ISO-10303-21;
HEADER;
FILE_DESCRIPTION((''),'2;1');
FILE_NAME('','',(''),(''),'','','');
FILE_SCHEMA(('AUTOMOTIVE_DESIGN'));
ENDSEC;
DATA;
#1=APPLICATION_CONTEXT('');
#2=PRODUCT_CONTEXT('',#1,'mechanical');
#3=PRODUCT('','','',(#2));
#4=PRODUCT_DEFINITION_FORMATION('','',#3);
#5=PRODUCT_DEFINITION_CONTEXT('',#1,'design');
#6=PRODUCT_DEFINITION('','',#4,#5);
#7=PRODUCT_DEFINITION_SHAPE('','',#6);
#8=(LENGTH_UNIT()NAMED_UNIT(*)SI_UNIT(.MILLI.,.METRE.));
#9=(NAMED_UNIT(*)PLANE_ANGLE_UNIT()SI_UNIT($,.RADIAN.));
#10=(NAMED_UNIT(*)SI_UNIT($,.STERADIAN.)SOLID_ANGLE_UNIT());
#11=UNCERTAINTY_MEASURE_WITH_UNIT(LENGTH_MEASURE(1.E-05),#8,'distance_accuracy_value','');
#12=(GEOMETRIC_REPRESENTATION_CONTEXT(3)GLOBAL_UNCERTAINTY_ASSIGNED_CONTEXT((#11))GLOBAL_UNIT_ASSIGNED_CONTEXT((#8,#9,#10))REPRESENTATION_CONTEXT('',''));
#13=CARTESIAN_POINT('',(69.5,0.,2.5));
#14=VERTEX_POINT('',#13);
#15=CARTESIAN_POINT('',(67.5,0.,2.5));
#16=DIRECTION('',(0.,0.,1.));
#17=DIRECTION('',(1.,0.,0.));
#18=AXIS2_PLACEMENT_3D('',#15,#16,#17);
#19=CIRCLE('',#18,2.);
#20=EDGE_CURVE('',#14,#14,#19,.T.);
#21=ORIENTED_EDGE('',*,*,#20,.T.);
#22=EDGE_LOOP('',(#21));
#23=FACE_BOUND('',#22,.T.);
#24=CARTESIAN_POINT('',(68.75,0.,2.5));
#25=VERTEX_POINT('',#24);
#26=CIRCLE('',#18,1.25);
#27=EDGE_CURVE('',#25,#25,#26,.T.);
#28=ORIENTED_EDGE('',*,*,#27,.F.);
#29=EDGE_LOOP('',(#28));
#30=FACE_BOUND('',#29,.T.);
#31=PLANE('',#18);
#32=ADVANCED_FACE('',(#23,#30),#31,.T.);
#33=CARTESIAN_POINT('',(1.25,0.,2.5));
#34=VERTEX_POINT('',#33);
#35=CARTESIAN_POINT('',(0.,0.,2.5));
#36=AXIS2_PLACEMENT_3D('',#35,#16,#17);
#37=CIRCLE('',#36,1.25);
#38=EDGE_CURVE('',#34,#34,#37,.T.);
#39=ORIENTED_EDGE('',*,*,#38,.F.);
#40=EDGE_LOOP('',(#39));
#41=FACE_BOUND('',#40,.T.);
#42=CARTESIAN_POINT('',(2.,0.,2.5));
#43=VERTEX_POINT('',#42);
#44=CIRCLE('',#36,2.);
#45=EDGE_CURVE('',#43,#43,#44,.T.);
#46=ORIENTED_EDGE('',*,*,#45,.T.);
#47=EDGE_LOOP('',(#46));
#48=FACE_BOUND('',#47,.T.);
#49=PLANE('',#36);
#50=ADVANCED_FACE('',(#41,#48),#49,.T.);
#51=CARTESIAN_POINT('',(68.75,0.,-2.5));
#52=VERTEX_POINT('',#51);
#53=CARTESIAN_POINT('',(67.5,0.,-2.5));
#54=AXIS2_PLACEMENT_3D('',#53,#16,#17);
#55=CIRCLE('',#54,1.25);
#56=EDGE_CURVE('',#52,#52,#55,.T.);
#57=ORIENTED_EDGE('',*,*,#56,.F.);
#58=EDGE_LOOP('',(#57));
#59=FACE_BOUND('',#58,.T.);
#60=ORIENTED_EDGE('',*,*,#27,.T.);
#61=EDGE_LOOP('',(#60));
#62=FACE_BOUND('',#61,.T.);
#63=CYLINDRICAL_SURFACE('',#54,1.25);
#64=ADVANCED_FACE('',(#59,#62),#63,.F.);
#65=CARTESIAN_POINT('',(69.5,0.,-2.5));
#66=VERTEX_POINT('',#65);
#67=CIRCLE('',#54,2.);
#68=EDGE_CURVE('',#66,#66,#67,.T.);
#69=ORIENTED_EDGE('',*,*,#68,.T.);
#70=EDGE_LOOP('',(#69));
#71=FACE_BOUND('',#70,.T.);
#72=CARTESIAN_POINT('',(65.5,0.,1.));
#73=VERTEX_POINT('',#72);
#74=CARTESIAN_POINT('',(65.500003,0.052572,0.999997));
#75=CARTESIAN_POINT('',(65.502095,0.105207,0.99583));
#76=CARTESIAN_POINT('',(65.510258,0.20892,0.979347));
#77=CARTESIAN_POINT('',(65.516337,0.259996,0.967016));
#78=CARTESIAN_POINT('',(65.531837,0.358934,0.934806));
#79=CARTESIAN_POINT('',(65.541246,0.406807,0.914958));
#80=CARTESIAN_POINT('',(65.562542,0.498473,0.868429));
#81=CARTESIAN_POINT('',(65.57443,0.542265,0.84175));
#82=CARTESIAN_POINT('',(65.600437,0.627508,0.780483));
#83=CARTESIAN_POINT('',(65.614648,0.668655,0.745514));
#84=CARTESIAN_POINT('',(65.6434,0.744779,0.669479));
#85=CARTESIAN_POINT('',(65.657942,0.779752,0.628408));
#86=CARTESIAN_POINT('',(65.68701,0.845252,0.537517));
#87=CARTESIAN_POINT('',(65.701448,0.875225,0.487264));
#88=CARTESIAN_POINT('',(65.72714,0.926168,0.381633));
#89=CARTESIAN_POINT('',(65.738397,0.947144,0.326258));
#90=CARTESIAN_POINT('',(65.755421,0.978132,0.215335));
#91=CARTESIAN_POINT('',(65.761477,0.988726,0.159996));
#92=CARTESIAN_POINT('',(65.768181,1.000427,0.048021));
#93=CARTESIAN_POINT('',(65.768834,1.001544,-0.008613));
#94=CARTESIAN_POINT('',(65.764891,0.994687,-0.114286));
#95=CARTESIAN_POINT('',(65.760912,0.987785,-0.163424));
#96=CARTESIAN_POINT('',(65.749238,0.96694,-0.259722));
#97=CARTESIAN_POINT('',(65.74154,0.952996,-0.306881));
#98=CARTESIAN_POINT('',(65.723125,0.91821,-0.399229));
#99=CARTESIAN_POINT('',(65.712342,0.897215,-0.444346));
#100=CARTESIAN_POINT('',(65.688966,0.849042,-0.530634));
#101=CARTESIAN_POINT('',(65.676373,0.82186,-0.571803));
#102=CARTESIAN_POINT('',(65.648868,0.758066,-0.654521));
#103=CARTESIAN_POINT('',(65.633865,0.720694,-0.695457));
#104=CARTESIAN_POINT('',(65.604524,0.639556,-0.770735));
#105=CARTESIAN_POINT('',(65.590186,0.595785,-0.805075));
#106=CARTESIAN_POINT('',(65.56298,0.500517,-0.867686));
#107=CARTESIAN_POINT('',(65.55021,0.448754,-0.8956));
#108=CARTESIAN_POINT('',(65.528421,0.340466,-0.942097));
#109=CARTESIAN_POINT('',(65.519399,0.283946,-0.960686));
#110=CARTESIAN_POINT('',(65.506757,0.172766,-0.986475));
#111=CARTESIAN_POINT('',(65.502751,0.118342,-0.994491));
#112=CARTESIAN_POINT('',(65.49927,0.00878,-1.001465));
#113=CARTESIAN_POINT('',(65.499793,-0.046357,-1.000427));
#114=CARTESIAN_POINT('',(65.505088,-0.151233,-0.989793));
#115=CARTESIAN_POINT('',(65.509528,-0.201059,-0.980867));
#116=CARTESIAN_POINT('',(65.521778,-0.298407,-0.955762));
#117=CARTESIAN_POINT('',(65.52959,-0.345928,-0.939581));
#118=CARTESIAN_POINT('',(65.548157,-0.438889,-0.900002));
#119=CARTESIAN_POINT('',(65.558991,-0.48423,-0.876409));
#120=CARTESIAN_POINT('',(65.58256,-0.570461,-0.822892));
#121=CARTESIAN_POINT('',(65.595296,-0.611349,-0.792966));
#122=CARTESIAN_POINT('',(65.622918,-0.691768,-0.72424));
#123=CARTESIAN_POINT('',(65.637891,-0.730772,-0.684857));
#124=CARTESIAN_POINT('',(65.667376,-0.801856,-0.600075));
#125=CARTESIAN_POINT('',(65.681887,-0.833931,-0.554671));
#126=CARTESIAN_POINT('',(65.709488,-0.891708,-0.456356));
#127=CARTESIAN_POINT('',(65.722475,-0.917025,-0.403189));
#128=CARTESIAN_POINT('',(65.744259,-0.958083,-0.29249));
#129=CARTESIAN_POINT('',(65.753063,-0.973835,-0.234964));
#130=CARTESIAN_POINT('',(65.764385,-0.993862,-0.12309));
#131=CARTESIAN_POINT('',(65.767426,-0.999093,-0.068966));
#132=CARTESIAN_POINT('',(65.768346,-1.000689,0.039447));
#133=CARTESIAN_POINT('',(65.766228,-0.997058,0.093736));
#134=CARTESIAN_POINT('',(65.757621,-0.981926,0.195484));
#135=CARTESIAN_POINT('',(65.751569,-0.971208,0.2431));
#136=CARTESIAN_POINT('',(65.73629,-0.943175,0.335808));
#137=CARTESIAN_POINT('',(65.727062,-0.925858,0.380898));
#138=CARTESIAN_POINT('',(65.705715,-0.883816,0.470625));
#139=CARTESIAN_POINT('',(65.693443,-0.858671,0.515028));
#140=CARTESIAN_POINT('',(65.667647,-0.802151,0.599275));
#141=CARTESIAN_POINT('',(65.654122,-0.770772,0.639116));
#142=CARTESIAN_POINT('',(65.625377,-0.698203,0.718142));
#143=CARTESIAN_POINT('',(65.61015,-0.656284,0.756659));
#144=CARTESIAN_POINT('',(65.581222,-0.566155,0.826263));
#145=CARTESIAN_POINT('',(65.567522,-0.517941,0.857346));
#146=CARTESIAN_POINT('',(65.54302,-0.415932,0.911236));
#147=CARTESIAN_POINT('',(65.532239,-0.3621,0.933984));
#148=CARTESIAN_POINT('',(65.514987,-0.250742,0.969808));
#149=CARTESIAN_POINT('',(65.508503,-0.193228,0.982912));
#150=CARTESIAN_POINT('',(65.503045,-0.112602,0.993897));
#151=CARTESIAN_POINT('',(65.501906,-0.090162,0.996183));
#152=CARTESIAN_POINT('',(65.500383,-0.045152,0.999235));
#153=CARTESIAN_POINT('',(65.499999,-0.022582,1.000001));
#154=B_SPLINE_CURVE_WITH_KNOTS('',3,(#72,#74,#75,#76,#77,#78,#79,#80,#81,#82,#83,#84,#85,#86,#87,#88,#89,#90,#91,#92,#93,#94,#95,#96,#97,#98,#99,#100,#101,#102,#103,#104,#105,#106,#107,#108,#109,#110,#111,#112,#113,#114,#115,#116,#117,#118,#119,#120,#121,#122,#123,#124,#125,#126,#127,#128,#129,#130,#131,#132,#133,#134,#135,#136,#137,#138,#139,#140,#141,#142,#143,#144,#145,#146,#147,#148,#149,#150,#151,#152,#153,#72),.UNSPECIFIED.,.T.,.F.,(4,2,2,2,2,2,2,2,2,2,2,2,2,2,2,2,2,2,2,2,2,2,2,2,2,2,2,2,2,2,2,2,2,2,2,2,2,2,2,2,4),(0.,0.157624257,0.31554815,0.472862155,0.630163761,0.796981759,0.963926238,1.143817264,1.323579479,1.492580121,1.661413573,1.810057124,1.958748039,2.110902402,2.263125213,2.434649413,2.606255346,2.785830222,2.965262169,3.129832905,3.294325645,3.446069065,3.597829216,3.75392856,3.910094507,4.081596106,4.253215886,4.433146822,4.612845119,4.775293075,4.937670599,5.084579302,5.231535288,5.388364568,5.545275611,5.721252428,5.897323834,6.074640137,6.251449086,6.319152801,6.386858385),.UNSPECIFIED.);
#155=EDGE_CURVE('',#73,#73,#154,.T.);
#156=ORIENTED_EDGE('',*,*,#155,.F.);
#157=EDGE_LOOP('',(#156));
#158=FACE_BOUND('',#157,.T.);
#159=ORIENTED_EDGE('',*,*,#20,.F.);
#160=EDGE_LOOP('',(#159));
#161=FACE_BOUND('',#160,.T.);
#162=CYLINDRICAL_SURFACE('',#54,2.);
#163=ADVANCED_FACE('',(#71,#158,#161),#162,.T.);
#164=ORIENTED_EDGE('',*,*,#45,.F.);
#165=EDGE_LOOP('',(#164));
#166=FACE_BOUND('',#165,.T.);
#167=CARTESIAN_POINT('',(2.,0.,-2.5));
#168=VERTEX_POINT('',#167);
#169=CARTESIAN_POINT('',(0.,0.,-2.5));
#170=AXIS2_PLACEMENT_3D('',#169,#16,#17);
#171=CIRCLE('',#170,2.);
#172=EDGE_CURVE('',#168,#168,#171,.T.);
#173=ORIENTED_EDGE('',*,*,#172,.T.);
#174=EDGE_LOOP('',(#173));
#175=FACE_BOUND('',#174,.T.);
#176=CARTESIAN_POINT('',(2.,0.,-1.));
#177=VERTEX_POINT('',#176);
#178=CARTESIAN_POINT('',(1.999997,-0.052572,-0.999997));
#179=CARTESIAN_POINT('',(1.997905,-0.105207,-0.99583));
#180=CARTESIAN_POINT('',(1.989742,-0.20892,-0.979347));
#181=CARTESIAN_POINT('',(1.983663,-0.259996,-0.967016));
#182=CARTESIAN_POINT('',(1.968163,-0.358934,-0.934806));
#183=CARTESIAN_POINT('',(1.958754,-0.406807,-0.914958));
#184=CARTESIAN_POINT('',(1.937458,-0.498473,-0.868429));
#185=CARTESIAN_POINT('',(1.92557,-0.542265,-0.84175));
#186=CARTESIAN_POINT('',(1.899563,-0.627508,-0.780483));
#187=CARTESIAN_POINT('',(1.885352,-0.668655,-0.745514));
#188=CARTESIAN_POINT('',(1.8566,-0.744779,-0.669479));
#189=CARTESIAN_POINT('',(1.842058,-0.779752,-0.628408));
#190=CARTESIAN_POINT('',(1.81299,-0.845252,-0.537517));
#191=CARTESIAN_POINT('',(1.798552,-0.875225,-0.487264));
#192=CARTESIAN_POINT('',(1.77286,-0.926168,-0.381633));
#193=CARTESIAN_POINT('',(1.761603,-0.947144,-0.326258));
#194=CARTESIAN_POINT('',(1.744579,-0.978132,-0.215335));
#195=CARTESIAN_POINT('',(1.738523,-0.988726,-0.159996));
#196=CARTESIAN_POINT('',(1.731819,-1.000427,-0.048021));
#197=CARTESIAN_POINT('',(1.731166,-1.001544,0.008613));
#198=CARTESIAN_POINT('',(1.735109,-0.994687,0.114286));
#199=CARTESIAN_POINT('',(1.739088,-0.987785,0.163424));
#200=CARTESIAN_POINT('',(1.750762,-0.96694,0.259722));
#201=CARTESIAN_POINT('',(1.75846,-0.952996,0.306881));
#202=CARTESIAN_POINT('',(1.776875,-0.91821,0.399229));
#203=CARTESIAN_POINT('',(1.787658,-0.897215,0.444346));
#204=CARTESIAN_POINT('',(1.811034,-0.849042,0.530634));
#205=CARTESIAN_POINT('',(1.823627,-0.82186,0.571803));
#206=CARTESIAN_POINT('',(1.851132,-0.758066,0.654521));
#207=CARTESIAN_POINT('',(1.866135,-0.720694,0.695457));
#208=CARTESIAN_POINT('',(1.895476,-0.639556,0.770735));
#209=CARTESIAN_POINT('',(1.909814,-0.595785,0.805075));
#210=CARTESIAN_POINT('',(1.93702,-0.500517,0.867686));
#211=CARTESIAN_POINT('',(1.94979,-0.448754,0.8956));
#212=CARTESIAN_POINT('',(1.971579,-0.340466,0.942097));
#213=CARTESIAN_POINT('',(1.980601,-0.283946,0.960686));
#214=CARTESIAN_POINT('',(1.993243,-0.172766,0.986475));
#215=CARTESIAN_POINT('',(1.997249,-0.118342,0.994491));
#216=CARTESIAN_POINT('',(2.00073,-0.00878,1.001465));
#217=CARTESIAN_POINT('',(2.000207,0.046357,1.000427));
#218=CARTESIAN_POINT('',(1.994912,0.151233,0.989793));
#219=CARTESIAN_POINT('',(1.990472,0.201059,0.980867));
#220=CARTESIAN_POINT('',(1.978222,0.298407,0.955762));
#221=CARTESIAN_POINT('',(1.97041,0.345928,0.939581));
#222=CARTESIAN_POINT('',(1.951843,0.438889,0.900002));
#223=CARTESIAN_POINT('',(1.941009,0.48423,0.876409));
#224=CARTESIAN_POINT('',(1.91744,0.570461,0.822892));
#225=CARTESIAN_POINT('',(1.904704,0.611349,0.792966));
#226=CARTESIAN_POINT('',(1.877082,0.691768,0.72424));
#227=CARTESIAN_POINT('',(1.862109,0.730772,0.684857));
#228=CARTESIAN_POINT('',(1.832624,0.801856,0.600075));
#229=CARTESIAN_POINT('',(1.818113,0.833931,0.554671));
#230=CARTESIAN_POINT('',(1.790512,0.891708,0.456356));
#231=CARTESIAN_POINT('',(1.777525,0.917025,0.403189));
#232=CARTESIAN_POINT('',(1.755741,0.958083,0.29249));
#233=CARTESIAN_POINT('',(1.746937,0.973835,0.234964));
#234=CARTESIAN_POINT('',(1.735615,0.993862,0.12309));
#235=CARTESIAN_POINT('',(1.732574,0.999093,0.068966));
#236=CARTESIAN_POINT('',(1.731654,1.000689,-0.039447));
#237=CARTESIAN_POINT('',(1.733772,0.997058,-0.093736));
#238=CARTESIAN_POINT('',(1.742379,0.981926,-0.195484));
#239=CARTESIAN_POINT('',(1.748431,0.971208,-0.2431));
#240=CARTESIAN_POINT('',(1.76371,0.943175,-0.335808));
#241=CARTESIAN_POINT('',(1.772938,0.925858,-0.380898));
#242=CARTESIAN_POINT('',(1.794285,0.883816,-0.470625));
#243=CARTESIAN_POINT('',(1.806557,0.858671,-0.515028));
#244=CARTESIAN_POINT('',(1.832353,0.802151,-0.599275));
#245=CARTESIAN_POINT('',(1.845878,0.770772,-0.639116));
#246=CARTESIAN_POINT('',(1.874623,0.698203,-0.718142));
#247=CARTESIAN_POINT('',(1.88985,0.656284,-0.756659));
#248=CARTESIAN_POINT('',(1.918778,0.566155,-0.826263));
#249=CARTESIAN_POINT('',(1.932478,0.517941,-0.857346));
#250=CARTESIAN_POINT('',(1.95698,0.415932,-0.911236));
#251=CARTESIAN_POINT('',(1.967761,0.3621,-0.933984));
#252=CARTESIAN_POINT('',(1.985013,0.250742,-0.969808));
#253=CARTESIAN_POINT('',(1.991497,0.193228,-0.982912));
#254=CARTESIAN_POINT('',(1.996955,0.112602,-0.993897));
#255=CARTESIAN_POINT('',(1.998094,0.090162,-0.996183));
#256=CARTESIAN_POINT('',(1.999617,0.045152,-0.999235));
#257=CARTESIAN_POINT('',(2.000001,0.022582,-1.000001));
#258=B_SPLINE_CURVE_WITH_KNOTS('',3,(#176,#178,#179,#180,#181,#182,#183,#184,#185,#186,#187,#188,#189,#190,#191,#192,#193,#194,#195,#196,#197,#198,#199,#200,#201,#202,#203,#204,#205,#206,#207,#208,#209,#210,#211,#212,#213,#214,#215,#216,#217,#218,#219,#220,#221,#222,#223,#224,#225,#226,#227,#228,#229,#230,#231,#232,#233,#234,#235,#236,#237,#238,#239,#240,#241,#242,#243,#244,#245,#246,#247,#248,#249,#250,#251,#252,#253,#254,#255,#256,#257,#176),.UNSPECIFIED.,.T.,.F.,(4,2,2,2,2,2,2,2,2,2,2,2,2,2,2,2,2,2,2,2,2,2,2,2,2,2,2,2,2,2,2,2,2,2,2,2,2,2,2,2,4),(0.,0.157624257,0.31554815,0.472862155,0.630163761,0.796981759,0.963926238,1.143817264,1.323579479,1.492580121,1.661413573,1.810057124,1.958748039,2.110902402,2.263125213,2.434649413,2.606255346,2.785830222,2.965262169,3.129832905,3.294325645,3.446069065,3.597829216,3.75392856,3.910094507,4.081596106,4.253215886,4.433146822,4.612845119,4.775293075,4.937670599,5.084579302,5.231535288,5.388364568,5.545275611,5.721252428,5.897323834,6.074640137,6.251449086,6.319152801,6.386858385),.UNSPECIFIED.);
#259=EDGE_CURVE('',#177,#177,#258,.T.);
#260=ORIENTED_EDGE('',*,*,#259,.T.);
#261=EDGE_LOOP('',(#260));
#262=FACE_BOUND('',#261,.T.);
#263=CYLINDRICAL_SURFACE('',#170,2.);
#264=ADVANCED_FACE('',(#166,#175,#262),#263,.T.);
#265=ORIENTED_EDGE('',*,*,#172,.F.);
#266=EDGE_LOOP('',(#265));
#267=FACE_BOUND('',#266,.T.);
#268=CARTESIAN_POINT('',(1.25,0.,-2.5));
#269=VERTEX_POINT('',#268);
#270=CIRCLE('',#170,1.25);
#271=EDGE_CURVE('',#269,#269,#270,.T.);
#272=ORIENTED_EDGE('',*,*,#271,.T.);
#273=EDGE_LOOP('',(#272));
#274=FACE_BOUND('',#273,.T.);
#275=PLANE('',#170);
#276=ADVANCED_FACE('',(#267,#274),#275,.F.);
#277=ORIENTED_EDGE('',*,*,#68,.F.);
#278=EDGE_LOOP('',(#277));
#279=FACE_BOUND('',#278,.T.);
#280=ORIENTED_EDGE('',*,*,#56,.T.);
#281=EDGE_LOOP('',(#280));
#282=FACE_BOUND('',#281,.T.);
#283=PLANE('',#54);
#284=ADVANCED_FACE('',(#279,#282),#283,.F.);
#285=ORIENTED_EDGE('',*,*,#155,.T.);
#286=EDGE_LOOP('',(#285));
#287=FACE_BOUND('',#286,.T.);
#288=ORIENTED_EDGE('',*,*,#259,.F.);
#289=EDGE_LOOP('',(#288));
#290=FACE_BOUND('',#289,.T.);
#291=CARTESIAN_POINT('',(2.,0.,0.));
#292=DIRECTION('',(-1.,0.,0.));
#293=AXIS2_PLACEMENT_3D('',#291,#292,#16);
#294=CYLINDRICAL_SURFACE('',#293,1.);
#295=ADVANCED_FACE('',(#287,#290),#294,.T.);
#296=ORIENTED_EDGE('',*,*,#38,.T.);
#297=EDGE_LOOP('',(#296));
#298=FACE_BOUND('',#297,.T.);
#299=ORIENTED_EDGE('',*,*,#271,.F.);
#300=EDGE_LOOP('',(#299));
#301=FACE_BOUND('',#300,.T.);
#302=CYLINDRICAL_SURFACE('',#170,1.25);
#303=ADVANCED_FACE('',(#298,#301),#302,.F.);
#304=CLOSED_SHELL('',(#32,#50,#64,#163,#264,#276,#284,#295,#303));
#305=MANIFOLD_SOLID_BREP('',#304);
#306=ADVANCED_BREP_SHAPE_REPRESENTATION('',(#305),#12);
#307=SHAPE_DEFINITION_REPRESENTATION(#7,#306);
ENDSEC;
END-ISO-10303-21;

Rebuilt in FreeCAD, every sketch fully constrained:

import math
import FreeCAD as App
import Part
import Sketcher

V = App.Vector
Q = App.Units.Quantity

doc = App.newDocument("Part")
body = doc.addObject("PartDesign::Body", "Body")

sketch1 = doc.addObject("Sketcher::SketchObject", "Sketch")
body.addObject(sketch1)
sketch1.AttachmentSupport = (doc.XY_Plane, [""])
sketch1.MapMode = "FlatFace"
sketch1.addGeometry(Part.Circle(V(0, 0, 0), V(0, 0, 1), 2), False)
sketch1.addGeometry(Part.Circle(V(0, 0, 0), V(0, 0, 1), 1.2), False)
sketch1.addConstraint(Sketcher.Constraint("Coincident", 0, 3, -1, 1))
sketch1.addConstraint(Sketcher.Constraint("Coincident", 1, 3, -1, 1))
sketch1.addConstraint(Sketcher.Constraint("Diameter", 0, Q("4 mm")))
sketch1.addConstraint(Sketcher.Constraint("Diameter", 1, Q("2.5 mm")))
pad1 = doc.addObject("PartDesign::Pad", "Pad")
body.addObject(pad1)
pad1.Profile = sketch1
pad1.Type = "TwoLengths"
pad1.Length = 2.5
pad1.Length2 = 2.5
body2 = doc.addObject("PartDesign::Body", "Body001")

sketch2 = doc.addObject("Sketcher::SketchObject", "Sketch001")
body2.addObject(sketch2)
sketch2.AttachmentSupport = (doc.getObject("XY_Plane001"), [""])
sketch2.MapMode = "FlatFace"
sketch2.addGeometry(Part.Circle(V(67.5, 0, 0), V(0, 0, 1), 2), False)
sketch2.addGeometry(Part.Circle(V(67.5, 0, 0), V(0, 0, 1), 1.2), False)
sketch2.addConstraint(Sketcher.Constraint("Coincident", 1, 3, 0, 3))
sketch2.addConstraint(Sketcher.Constraint("PointOnObject", 0, 3, -1))
sketch2.addConstraint(Sketcher.Constraint("Diameter", 0, Q("4 mm")))
sketch2.addConstraint(Sketcher.Constraint("Diameter", 1, Q("2.5 mm")))
sketch2.addConstraint(Sketcher.Constraint("DistanceX", -1, 1, 0, 3, Q("67.5 mm")))
pad2 = doc.addObject("PartDesign::Pad", "Pad001")
body2.addObject(pad2)
pad2.Profile = sketch2
pad2.Type = "TwoLengths"
pad2.Length = 2.5
pad2.Length2 = 2.5
body.AllowCompound = True
doc.recompute()

boolean = doc.addObject("PartDesign::Boolean", "Boolean")
body.addObject(boolean)
boolean.Type = "Fuse"
boolean.addObjects([body2])

sketch3 = doc.addObject("Sketcher::SketchObject", "Sketch002")
body.addObject(sketch3)
sketch3.AttachmentSupport = (doc.XY_Plane, [""])
sketch3.MapMode = "FlatFace"
sketch3.addGeometry(Part.ArcOfCircle(Part.Circle(V(67.5, 0, 0), V(0, 0, 1), 2), math.radians(150), math.radians(180)), False)
sketch3.addGeometry(Part.LineSegment(V(65.8, 1, 0), V(1.7, 1, 0)), False)
sketch3.addGeometry(Part.ArcOfCircle(Part.Circle(V(0, 0, 0), V(0, 0, 1), 2), math.radians(0), math.radians(30)), False)
sketch3.addGeometry(Part.LineSegment(V(2, 0, 0), V(65.5, 0, 0)), False)
sketch3.addConstraint(Sketcher.Constraint("Coincident", 0, 1, 1, 1))
sketch3.addConstraint(Sketcher.Constraint("Coincident", 1, 2, 2, 2))
sketch3.addConstraint(Sketcher.Constraint("Coincident", 2, 1, 3, 1))
sketch3.addConstraint(Sketcher.Constraint("Coincident", 3, 2, 0, 2))
sketch3.addConstraint(Sketcher.Constraint("Horizontal", 1))
sketch3.addConstraint(Sketcher.Constraint("Horizontal", 3))
sketch3.addConstraint(Sketcher.Constraint("Coincident", 2, 3, -1, 1))
sketch3.addConstraint(Sketcher.Constraint("Equal", 0, 2))
sketch3.addConstraint(Sketcher.Constraint("PointOnObject", 0, 3, -1))
sketch3.addConstraint(Sketcher.Constraint("PointOnObject", 2, 1, -1))
sketch3.addConstraint(Sketcher.Constraint("Radius", 0, Q("2 mm")))
sketch3.addConstraint(Sketcher.Constraint("DistanceX", 3, 1, 3, 2, Q("63.5 mm")))
sketch3.addConstraint(Sketcher.Constraint("DistanceY", -1, 1, 0, 1, Q("1 mm")))
revolution = doc.addObject("PartDesign::Revolution", "Revolution")
body.addObject(revolution)
revolution.Profile = sketch3
revolution.ReferenceAxis = (sketch3, ["H_Axis"])
revolution.Angle = 360

doc.recompute()
